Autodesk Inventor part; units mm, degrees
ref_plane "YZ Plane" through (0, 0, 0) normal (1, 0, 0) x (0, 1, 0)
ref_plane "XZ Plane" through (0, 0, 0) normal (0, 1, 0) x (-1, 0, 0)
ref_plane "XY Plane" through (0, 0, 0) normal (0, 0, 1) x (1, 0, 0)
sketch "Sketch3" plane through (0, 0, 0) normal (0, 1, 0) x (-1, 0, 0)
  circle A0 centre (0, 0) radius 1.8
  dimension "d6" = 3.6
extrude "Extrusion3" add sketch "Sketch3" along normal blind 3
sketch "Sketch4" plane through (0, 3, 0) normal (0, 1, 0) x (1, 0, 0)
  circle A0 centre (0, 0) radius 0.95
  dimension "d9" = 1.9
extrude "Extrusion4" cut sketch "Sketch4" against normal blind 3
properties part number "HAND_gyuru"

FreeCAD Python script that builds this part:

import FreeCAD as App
import Part
import Sketcher
Q = App.Units.Quantity

doc = App.newDocument("Part")
body = doc.addObject("PartDesign::Body", "Body")

sketch1 = doc.addObject("Sketcher::SketchObject", "Sketch")
body.addObject(sketch1)
sketch1.AttachmentSupport = (doc.XZ_Plane, [""])
sketch1.MapMode = "FlatFace"
sketch1.addGeometry(Part.Circle(App.Vector(0, 0, 0), App.Vector(0, 0, 1), 1.8), False)
sketch1.addConstraint([
    Sketcher.Constraint("Coincident", 0, 3, -1, 1),
    Sketcher.Constraint("Diameter", 0, Q("3.6 mm")),
])
pad1 = doc.addObject("PartDesign::Pad", "Pad")
body.addObject(pad1)
pad1.Profile = sketch1
pad1.Length = 3
pad1.Reversed = True

sketch2 = doc.addObject("Sketcher::SketchObject", "Sketch001")
body.addObject(sketch2)
sketch2.AttachmentSupport = (doc.XZ_Plane, [""])
sketch2.MapMode = "FlatFace"
sketch2.AttachmentOffset = App.Placement(App.Vector(0, 0, -3), App.Rotation())
sketch2.addGeometry(Part.Circle(App.Vector(0, 0, 0), App.Vector(0, 0, 1), 0.95), False)
sketch2.addConstraint([
    Sketcher.Constraint("Coincident", 0, 3, -1, 1),
    Sketcher.Constraint("Diameter", 0, Q("1.9 mm")),
])
pocket1 = doc.addObject("PartDesign::Pocket", "Pocket")
body.addObject(pocket1)
pocket1.Profile = sketch2
pocket1.Length = 3
pocket1.Reversed = True

doc.recompute()
